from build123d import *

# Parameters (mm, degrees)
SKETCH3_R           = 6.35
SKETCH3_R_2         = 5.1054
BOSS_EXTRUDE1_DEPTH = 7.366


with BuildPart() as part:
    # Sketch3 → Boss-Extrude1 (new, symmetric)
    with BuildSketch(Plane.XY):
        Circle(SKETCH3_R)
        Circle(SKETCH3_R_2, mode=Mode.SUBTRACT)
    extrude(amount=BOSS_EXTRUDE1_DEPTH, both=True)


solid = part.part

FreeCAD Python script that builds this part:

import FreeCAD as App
import Part
import Sketcher
from FreeCAD import Vector
Q = App.Units.Quantity

doc = App.newDocument("Part")
body = doc.addObject("PartDesign::Body", "Body")

# Sketch on XY plane
sketch1 = body.newObject("Sketcher::SketchObject", "Sketch")
sketch1.AttachmentSupport = (doc.getObject("XY_Plane"), [""])
sketch1.MapMode = "FlatFace"
sketch1.addGeometry([
    Part.Circle(Vector(0, 0, 0), Vector(0, 0, 1), 6.35),
    Part.Circle(Vector(0, 0, 0), Vector(0, 0, 1), 5.1054),
], False)
sketch1.addConstraint([
    Sketcher.Constraint("Coincident", 0, 3, -1, 1),
    Sketcher.Constraint("Coincident", 1, 3, -1, 1),
    Sketcher.Constraint("Diameter", 0, Q("0.5 in")),
    Sketcher.Constraint("Diameter", 1, Q("0.402 in")),
])
pad1 = body.newObject("PartDesign::Pad", "Pad")
pad1.Profile = sketch1
pad1.Length = Q("0.58 in")
pad1.Midplane = True

doc.recompute()
